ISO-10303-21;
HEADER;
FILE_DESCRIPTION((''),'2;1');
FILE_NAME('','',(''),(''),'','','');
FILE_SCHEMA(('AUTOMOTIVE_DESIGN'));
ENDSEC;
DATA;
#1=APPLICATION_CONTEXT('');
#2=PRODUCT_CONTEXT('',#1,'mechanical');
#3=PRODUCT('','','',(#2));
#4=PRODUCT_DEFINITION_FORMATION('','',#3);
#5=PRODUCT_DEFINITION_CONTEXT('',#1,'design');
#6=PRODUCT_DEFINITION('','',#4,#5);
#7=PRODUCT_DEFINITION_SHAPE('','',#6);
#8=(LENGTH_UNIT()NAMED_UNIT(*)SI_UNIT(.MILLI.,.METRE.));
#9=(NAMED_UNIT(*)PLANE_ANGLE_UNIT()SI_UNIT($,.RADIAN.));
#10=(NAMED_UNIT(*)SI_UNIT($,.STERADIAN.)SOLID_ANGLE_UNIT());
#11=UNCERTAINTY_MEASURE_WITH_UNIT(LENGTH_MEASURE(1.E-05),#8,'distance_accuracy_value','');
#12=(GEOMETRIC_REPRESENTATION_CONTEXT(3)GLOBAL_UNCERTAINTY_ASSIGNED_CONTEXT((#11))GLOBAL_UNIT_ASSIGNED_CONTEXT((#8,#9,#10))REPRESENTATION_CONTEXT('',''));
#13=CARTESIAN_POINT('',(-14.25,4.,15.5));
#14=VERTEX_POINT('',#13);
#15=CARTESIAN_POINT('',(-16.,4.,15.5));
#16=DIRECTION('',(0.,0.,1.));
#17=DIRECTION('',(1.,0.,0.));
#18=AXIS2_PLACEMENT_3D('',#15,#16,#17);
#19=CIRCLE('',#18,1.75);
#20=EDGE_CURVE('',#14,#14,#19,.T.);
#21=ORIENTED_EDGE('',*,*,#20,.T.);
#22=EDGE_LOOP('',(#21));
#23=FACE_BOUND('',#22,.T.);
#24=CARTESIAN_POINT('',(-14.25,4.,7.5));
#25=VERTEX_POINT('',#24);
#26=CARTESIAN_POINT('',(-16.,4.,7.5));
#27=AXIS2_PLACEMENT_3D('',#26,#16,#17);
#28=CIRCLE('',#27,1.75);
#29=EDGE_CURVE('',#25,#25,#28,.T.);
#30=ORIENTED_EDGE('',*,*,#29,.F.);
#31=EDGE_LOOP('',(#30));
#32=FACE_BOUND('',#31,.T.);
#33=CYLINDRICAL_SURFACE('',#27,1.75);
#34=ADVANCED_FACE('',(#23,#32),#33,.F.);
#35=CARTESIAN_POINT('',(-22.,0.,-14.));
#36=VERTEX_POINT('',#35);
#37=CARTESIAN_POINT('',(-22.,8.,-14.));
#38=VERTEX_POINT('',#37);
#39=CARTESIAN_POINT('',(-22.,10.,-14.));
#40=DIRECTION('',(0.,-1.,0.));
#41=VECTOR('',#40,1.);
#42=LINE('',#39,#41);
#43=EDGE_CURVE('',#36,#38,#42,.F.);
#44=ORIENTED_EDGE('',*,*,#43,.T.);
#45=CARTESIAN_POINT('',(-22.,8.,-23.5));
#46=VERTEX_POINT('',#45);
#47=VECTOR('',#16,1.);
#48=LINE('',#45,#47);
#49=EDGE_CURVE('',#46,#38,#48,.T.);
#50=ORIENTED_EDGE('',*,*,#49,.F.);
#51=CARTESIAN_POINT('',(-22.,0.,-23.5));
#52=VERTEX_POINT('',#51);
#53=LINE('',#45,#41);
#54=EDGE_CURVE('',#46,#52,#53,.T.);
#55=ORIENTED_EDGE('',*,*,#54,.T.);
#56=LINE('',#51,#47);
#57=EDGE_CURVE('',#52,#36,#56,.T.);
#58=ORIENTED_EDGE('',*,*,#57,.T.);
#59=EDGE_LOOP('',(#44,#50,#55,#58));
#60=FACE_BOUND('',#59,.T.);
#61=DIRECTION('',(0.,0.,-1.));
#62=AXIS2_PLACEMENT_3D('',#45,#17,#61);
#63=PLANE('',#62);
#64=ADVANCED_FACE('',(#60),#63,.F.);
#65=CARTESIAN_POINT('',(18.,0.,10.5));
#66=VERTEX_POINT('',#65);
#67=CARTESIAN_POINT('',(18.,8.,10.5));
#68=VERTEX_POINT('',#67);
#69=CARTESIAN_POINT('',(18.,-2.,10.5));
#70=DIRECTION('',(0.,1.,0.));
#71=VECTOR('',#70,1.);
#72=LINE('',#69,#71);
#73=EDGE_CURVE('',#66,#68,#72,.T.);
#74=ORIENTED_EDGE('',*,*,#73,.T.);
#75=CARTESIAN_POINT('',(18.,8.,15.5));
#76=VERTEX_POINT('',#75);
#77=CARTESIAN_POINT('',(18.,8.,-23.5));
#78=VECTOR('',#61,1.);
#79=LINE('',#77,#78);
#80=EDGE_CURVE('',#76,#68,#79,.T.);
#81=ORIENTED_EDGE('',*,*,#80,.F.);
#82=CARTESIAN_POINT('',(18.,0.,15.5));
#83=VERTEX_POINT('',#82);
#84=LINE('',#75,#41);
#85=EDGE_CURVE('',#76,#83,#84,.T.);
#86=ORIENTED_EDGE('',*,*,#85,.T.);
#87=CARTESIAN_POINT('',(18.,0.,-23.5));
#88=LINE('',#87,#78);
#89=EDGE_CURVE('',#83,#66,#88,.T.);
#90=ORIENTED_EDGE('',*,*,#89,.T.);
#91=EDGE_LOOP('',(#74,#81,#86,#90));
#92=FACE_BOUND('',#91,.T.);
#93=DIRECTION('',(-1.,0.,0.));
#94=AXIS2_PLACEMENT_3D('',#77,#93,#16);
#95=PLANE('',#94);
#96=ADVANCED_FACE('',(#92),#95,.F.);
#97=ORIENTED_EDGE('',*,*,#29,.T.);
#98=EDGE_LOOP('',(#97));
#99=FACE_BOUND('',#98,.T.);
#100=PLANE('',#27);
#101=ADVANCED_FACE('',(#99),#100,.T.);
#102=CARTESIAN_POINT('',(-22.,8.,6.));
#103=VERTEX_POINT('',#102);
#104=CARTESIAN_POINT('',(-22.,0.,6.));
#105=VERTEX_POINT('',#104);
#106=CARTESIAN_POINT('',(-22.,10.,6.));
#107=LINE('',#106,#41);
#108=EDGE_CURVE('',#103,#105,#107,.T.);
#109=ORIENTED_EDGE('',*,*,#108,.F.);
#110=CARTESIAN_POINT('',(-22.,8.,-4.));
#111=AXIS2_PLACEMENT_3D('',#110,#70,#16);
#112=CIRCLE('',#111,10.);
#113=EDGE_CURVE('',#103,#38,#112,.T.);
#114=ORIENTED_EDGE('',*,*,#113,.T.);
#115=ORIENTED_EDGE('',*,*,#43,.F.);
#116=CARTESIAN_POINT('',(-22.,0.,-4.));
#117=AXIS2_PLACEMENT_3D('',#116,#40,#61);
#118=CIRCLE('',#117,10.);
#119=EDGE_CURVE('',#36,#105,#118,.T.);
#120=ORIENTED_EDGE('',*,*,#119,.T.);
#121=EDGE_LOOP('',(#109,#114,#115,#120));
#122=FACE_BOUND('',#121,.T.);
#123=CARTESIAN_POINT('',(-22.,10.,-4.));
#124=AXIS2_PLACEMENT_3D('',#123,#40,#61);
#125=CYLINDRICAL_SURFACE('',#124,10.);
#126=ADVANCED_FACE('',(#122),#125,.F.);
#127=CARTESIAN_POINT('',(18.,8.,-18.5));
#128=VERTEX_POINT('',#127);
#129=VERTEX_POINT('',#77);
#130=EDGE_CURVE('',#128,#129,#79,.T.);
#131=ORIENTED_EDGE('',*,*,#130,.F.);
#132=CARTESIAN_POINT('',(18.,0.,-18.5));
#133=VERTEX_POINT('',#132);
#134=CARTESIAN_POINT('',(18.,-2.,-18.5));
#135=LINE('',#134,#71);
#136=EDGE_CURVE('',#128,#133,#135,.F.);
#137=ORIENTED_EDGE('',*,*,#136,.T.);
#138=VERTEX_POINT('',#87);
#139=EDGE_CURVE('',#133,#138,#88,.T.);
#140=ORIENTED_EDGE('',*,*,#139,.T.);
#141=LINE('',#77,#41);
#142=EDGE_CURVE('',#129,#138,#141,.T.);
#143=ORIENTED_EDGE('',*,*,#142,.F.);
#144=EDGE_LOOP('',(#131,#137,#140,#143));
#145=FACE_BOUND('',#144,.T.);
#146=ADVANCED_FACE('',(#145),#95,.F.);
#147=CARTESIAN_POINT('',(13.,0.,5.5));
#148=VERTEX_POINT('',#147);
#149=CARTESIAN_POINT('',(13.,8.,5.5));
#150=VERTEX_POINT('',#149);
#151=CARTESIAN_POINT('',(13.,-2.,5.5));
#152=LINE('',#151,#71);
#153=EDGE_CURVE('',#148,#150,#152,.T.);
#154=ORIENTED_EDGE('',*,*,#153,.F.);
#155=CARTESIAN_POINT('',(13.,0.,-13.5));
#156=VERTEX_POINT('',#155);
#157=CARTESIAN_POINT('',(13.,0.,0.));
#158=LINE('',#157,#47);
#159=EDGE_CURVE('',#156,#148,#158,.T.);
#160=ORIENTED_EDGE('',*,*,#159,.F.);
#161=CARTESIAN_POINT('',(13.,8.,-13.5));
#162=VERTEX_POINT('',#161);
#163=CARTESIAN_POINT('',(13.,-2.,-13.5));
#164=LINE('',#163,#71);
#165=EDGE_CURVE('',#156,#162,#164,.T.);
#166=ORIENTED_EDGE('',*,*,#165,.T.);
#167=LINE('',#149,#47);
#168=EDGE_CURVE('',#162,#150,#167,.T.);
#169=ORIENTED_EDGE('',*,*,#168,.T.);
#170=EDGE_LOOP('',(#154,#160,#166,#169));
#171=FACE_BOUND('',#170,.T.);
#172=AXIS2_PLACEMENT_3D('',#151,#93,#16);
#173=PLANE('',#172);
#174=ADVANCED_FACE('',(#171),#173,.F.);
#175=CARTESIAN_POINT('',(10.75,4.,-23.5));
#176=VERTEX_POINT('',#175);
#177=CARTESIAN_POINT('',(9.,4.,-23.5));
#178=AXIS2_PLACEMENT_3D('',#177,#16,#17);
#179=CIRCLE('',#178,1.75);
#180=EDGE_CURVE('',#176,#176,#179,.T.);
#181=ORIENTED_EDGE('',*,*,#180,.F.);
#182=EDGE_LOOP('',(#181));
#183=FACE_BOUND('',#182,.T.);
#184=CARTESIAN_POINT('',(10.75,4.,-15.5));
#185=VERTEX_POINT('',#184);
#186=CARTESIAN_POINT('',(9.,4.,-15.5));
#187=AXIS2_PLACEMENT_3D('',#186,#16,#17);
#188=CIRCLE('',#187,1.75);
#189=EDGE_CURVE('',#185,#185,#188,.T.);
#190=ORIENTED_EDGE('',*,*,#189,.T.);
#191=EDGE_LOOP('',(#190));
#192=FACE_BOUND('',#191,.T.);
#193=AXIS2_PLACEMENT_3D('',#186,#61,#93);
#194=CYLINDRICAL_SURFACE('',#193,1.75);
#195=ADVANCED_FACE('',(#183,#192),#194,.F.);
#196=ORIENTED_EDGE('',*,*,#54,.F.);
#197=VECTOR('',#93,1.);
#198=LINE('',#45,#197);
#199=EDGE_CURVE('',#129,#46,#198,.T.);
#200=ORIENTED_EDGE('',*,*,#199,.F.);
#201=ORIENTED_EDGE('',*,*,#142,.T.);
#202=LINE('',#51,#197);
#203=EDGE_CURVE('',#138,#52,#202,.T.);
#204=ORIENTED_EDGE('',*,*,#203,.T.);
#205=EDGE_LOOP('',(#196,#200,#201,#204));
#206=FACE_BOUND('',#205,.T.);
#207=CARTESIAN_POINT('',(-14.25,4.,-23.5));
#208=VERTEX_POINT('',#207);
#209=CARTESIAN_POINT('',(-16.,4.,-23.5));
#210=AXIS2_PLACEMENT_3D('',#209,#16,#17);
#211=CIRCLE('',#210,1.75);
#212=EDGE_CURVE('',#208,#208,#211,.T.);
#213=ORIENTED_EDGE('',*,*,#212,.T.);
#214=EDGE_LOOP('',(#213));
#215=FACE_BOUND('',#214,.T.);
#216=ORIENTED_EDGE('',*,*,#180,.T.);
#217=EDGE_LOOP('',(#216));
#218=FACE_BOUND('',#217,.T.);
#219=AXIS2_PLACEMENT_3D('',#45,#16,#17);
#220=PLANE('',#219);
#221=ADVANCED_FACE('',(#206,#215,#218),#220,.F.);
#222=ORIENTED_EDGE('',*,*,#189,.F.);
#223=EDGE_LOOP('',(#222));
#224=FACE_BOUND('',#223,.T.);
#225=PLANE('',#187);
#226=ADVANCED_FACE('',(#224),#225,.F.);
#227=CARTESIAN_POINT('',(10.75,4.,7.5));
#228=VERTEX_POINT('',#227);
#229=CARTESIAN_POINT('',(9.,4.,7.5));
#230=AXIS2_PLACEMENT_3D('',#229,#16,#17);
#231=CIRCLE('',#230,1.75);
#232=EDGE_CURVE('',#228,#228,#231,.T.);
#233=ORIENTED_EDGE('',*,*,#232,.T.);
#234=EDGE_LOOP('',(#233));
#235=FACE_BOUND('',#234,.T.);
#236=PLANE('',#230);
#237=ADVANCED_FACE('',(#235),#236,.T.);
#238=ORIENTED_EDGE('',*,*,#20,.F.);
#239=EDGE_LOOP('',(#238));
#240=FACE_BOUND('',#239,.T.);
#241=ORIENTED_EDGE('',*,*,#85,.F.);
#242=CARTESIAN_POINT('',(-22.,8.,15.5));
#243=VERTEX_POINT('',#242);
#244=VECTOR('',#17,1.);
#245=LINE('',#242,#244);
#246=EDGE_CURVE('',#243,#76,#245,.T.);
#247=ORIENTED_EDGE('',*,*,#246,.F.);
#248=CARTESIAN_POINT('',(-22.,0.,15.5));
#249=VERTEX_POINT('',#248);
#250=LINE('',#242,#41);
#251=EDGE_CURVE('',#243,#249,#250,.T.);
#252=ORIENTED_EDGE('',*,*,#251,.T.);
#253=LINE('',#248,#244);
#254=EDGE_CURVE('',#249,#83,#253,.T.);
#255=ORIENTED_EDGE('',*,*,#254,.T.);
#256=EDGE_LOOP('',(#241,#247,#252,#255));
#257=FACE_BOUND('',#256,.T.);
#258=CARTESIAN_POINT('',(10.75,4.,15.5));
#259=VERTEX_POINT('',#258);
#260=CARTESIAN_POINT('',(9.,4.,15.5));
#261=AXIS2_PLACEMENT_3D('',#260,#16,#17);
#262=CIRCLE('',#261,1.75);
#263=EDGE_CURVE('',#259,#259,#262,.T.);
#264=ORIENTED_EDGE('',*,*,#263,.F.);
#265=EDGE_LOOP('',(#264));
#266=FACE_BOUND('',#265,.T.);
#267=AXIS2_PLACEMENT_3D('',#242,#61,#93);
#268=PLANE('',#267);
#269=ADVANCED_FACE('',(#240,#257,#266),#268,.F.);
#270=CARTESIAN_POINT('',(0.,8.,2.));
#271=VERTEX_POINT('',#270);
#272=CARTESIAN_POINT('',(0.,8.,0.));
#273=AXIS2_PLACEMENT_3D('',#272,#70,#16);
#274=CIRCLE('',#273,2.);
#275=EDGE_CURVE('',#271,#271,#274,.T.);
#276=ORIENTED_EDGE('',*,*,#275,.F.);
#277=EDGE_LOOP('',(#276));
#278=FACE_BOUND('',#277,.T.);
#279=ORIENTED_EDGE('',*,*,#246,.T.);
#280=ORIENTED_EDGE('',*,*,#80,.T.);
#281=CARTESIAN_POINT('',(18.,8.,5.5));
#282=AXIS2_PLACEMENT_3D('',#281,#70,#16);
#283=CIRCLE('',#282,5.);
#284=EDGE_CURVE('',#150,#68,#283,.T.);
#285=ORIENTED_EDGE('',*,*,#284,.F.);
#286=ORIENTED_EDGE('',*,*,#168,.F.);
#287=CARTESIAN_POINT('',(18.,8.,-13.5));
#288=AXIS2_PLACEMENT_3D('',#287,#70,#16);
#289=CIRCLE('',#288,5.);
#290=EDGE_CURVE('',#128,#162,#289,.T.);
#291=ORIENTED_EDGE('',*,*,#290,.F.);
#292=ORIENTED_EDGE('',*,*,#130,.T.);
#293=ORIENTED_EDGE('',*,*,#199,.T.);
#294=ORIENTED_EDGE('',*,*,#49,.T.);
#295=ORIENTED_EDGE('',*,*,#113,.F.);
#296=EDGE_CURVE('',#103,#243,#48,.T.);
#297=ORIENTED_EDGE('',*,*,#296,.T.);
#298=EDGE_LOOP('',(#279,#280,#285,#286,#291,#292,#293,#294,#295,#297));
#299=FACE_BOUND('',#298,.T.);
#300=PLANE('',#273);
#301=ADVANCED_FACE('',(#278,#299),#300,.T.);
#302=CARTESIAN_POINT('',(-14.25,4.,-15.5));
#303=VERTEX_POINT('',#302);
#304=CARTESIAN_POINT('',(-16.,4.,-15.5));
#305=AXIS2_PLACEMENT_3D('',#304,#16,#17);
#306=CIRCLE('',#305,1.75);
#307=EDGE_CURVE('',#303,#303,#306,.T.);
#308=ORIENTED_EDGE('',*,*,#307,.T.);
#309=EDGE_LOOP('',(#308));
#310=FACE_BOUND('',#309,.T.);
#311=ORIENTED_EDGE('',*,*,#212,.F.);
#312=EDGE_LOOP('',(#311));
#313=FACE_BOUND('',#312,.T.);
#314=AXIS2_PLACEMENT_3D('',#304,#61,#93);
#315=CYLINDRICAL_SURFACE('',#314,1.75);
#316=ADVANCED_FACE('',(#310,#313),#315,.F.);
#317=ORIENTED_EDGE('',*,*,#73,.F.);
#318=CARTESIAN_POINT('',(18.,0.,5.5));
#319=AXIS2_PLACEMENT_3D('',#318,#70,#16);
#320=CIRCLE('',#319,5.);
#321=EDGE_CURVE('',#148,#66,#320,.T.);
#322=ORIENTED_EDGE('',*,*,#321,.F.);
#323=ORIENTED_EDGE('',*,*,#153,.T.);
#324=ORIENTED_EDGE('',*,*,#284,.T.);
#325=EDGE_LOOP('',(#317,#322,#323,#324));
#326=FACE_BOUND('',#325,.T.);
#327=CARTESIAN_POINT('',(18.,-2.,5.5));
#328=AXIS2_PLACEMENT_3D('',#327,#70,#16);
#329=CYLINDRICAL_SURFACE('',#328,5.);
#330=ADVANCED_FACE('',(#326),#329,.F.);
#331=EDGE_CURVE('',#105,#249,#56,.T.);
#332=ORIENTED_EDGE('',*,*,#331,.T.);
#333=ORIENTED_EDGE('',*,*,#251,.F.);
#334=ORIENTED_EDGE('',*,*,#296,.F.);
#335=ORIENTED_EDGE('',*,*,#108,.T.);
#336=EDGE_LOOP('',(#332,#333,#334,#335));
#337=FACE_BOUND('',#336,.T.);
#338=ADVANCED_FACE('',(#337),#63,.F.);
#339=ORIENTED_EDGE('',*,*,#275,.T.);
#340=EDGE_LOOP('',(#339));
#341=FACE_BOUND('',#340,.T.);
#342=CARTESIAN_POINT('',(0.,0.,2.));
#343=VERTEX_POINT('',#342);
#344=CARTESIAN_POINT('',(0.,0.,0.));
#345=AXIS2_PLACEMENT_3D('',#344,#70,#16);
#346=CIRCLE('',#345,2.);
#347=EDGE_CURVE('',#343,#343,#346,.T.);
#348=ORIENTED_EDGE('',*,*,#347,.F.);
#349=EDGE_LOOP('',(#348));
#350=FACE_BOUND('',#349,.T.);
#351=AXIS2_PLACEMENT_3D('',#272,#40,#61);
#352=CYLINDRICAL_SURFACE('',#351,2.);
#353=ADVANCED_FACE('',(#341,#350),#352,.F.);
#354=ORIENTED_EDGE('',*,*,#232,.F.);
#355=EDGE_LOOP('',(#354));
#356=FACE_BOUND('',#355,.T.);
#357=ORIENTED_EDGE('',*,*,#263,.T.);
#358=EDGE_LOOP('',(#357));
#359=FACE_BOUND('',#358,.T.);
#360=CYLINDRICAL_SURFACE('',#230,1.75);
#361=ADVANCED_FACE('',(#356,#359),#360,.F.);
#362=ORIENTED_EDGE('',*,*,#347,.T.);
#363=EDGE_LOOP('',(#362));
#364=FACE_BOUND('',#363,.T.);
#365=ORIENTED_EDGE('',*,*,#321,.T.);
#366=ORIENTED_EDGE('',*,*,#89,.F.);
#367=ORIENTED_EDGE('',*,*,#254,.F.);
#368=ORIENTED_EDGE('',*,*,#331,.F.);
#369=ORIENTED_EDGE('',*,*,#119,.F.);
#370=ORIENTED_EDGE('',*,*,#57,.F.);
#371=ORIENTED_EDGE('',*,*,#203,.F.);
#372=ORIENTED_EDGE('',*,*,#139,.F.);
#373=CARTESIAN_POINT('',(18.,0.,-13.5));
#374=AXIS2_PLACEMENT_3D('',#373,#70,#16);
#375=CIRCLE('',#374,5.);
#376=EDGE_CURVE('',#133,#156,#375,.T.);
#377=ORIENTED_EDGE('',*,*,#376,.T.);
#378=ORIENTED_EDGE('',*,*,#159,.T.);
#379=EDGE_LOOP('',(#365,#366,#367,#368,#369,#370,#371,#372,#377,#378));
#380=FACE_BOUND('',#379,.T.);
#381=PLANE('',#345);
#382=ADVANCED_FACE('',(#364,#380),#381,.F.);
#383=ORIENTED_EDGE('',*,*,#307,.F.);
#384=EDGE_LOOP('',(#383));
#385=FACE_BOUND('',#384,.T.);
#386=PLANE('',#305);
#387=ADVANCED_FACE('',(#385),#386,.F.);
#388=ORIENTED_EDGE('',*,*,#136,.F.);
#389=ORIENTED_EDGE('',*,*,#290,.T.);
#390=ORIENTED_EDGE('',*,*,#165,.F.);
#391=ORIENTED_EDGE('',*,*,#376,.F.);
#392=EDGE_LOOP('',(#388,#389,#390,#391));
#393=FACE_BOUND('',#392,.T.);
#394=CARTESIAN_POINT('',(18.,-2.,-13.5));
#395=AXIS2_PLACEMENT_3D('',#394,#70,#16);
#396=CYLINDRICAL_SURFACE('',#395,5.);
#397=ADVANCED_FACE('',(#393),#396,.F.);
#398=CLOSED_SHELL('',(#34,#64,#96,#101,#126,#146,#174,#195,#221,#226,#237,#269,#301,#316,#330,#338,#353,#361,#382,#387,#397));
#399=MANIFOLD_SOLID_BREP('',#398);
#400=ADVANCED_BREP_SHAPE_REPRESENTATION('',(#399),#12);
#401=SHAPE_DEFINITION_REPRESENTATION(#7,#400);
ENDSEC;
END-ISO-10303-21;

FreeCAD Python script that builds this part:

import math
import FreeCAD as App
import Part
import Sketcher
from FreeCAD import Vector

doc = App.newDocument("Part")
params = doc.addObject("Spreadsheet::Sheet", "Params")
for row, (alias, value) in enumerate([
    ("sketch1_diameter", "4 mm"),
    ("sketch1_width", "40 mm"),
    ("sketch1_height", "39 mm"),
    ("pad1_length", "8 mm"),
    ("sketch2_diameter", "3.5 mm"),
    ("pocket1_length", "8 mm"),
    ("sketch3_diameter", "3.5 mm"),
    ("pocket2_length", "8 mm"),
    ("sketch4_diameter", "20 mm"),
    ("pocket3_length", "10 mm"),
    ("sketch5_radius", "5 mm"),
    ("sketch5_height", "19 mm"),
    ("pocket4_length", "10 mm"),
], start=1):
    params.set(f"A{row}", alias)
    params.set(f"B{row}", "=" + value)
    params.setAlias(f"B{row}", alias)

body = doc.addObject("PartDesign::Body", "Body")

# Sketch on XZ plane
sketch1 = doc.addObject("Sketcher::SketchObject", "Sketch")
body.addObject(sketch1)
sketch1.AttachmentSupport = (doc.XZ_Plane, [""])
sketch1.MapMode = "FlatFace"
sketch1.addGeometry(Part.LineSegment(Vector(-22, -23.5, 0), Vector(-22, 15.5, 0)), False)
sketch1.addGeometry(Part.LineSegment(Vector(-22, 15.5, 0), Vector(18, 15.5, 0)), False)
sketch1.addGeometry(Part.LineSegment(Vector(18, 15.5, 0), Vector(18, -23.5, 0)), False)
sketch1.addGeometry(Part.LineSegment(Vector(18, -23.5, 0), Vector(-22, -23.5, 0)), False)
sketch1.addGeometry(Part.Circle(Vector(0, 0, 0), Vector(0, 0, 1), 2), False)
sketch1.addConstraint(Sketcher.Constraint("Coincident", 0, 2, 1, 1))
sketch1.addConstraint(Sketcher.Constraint("Coincident", 1, 2, 2, 1))
sketch1.addConstraint(Sketcher.Constraint("Coincident", 2, 2, 3, 1))
sketch1.addConstraint(Sketcher.Constraint("Coincident", 3, 2, 0, 1))
sketch1.addConstraint(Sketcher.Constraint("Vertical", 0))
sketch1.addConstraint(Sketcher.Constraint("Horizontal", 1))
sketch1.addConstraint(Sketcher.Constraint("Vertical", 2))
sketch1.addConstraint(Sketcher.Constraint("Horizontal", 3))
sketch1.addConstraint(Sketcher.Constraint("Coincident", 4, 3, -1, 1))
sketch1.addConstraint(Sketcher.Constraint("Diameter", 4, 4.0))
sketch1.addConstraint(Sketcher.Constraint("DistanceX", 1, 1, 1, 2, 40.0))
sketch1.addConstraint(Sketcher.Constraint("DistanceY", 0, 1, 0, 2, 39.0))
sketch1.addConstraint(Sketcher.Constraint("DistanceX", 0, 2, -1, 1, 22.0))
sketch1.addConstraint(Sketcher.Constraint("DistanceY", -1, 1, 0, 2, 15.5))
sketch1.setExpression("Constraints[9]", "Params.sketch1_diameter")
sketch1.setExpression("Constraints[10]", "Params.sketch1_width")
sketch1.setExpression("Constraints[11]", "Params.sketch1_height")
pad1 = doc.addObject("PartDesign::Pad", "Pad")
body.addObject(pad1)
pad1.Profile = sketch1
pad1.setExpression("Length", "Params.pad1_length")
pad1.Reversed = True

# Sketch on XY plane
sketch2 = doc.addObject("Sketcher::SketchObject", "Sketch001")
body.addObject(sketch2)
sketch2.AttachmentSupport = (doc.XY_Plane, [""])
sketch2.MapMode = "FlatFace"
sketch2.AttachmentOffset = App.Placement(Vector(0, 0, 15.5), App.Rotation())
sketch2.addGeometry(Part.Circle(Vector(9, 4, 0), Vector(0, 0, 1), 1.8), False)
sketch2.addGeometry(Part.Circle(Vector(-16, 4, 0), Vector(0, 0, 1), 1.8), False)
sketch2.addConstraint(Sketcher.Constraint("Equal", 0, 1))
sketch2.addConstraint(Sketcher.Constraint("Horizontal", 0, 3, 1, 3))
sketch2.addConstraint(Sketcher.Constraint("Diameter", 0, 3.5))
sketch2.addConstraint(Sketcher.Constraint("DistanceX", -1, 1, 0, 3, 9.0))
sketch2.addConstraint(Sketcher.Constraint("DistanceY", -1, 1, 0, 3, 4.0))
sketch2.addConstraint(Sketcher.Constraint("DistanceX", 1, 3, -1, 1, 16.0))
sketch2.setExpression("Constraints[2]", "Params.sketch2_diameter")
pocket1 = doc.addObject("PartDesign::Pocket", "Pocket")
body.addObject(pocket1)
pocket1.Profile = sketch2
pocket1.setExpression("Length", "Params.pocket1_length")

# Sketch on XY plane
sketch3 = doc.addObject("Sketcher::SketchObject", "Sketch002")
body.addObject(sketch3)
sketch3.AttachmentSupport = (doc.XY_Plane, [""])
sketch3.MapMode = "FlatFace"
sketch3.AttachmentOffset = App.Placement(Vector(0, 0, -15.5), App.Rotation())
sketch3.addGeometry(Part.Circle(Vector(9, 4, 0), Vector(0, 0, 1), 1.8), False)
sketch3.addGeometry(Part.Circle(Vector(-16, 4, 0), Vector(0, 0, 1), 1.8), False)
sketch3.addConstraint(Sketcher.Constraint("Equal", 0, 1))
sketch3.addConstraint(Sketcher.Constraint("Horizontal", 0, 3, 1, 3))
sketch3.addConstraint(Sketcher.Constraint("Diameter", 0, 3.5))
sketch3.addConstraint(Sketcher.Constraint("DistanceX", -1, 1, 0, 3, 9.0))
sketch3.addConstraint(Sketcher.Constraint("DistanceY", -1, 1, 0, 3, 4.0))
sketch3.addConstraint(Sketcher.Constraint("DistanceX", 1, 3, -1, 1, 16.0))
sketch3.setExpression("Constraints[2]", "Params.sketch3_diameter")
pocket2 = doc.addObject("PartDesign::Pocket", "Pocket001")
body.addObject(pocket2)
pocket2.Profile = sketch3
pocket2.setExpression("Length", "Params.pocket2_length")

# Sketch on XZ plane
sketch4 = doc.addObject("Sketcher::SketchObject", "Sketch003")
body.addObject(sketch4)
sketch4.AttachmentSupport = (doc.XZ_Plane, [""])
sketch4.MapMode = "FlatFace"
sketch4.addGeometry(Part.Circle(Vector(-22, -4, 0), Vector(0, 0, 1), 10), False)
sketch4.addConstraint(Sketcher.Constraint("Diameter", 0, 20.0))
sketch4.addConstraint(Sketcher.Constraint("DistanceX", 0, 3, -1, 1, 22.0))
sketch4.addConstraint(Sketcher.Constraint("DistanceY", 0, 3, -1, 1, 4.0))
sketch4.setExpression("Constraints[0]", "Params.sketch4_diameter")
pocket3 = doc.addObject("PartDesign::Pocket", "Pocket002")
body.addObject(pocket3)
pocket3.Profile = sketch4
pocket3.setExpression("Length", "Params.pocket3_length")

# Sketch on XZ plane
sketch5 = doc.addObject("Sketcher::SketchObject", "Sketch004")
body.addObject(sketch5)
sketch5.AttachmentSupport = (doc.XZ_Plane, [""])
sketch5.MapMode = "FlatFace"
sketch5.AttachmentOffset = App.Placement(Vector(0, 0, -8), App.Rotation())
sketch5.addGeometry(Part.LineSegment(Vector(13, -14, 0), Vector(13, 6, 0)), False)
sketch5.addGeometry(Part.ArcOfCircle(Part.Circle(Vector(18, 6, 0), Vector(0, 0, 1), 5), math.radians(0), math.radians(180)), False)
sketch5.addGeometry(Part.LineSegment(Vector(23, 6, 0), Vector(23, -14, 0)), False)
sketch5.addGeometry(Part.ArcOfCircle(Part.Circle(Vector(18, -14, 0), Vector(0, 0, 1), 5), math.radians(180), math.radians(360)), False)
sketch5.addConstraint(Sketcher.Constraint("Tangent", 0, 2, 1, 2))
sketch5.addConstraint(Sketcher.Constraint("Tangent", 1, 1, 2, 1))
sketch5.addConstraint(Sketcher.Constraint("Tangent", 2, 2, 3, 2))
sketch5.addConstraint(Sketcher.Constraint("Tangent", 3, 1, 0, 1))
sketch5.addConstraint(Sketcher.Constraint("Vertical", 0))
sketch5.addConstraint(Sketcher.Constraint("Vertical", 2))
sketch5.addConstraint(Sketcher.Constraint("Radius", 1, 5.0))
sketch5.addConstraint(Sketcher.Constraint("DistanceY", 0, 1, 0, 2, 19.0))
sketch5.addConstraint(Sketcher.Constraint("DistanceX", -1, 1, 1, 3, 18.0))
sketch5.addConstraint(Sketcher.Constraint("DistanceY", -1, 1, 1, 3, 5.5))
sketch5.setExpression("Constraints[6]", "Params.sketch5_radius")
sketch5.setExpression("Constraints[7]", "Params.sketch5_height")
pocket4 = doc.addObject("PartDesign::Pocket", "Pocket003")
body.addObject(pocket4)
pocket4.Profile = sketch5
pocket4.setExpression("Length", "Params.pocket4_length")
pocket4.Reversed = True

doc.recompute()
